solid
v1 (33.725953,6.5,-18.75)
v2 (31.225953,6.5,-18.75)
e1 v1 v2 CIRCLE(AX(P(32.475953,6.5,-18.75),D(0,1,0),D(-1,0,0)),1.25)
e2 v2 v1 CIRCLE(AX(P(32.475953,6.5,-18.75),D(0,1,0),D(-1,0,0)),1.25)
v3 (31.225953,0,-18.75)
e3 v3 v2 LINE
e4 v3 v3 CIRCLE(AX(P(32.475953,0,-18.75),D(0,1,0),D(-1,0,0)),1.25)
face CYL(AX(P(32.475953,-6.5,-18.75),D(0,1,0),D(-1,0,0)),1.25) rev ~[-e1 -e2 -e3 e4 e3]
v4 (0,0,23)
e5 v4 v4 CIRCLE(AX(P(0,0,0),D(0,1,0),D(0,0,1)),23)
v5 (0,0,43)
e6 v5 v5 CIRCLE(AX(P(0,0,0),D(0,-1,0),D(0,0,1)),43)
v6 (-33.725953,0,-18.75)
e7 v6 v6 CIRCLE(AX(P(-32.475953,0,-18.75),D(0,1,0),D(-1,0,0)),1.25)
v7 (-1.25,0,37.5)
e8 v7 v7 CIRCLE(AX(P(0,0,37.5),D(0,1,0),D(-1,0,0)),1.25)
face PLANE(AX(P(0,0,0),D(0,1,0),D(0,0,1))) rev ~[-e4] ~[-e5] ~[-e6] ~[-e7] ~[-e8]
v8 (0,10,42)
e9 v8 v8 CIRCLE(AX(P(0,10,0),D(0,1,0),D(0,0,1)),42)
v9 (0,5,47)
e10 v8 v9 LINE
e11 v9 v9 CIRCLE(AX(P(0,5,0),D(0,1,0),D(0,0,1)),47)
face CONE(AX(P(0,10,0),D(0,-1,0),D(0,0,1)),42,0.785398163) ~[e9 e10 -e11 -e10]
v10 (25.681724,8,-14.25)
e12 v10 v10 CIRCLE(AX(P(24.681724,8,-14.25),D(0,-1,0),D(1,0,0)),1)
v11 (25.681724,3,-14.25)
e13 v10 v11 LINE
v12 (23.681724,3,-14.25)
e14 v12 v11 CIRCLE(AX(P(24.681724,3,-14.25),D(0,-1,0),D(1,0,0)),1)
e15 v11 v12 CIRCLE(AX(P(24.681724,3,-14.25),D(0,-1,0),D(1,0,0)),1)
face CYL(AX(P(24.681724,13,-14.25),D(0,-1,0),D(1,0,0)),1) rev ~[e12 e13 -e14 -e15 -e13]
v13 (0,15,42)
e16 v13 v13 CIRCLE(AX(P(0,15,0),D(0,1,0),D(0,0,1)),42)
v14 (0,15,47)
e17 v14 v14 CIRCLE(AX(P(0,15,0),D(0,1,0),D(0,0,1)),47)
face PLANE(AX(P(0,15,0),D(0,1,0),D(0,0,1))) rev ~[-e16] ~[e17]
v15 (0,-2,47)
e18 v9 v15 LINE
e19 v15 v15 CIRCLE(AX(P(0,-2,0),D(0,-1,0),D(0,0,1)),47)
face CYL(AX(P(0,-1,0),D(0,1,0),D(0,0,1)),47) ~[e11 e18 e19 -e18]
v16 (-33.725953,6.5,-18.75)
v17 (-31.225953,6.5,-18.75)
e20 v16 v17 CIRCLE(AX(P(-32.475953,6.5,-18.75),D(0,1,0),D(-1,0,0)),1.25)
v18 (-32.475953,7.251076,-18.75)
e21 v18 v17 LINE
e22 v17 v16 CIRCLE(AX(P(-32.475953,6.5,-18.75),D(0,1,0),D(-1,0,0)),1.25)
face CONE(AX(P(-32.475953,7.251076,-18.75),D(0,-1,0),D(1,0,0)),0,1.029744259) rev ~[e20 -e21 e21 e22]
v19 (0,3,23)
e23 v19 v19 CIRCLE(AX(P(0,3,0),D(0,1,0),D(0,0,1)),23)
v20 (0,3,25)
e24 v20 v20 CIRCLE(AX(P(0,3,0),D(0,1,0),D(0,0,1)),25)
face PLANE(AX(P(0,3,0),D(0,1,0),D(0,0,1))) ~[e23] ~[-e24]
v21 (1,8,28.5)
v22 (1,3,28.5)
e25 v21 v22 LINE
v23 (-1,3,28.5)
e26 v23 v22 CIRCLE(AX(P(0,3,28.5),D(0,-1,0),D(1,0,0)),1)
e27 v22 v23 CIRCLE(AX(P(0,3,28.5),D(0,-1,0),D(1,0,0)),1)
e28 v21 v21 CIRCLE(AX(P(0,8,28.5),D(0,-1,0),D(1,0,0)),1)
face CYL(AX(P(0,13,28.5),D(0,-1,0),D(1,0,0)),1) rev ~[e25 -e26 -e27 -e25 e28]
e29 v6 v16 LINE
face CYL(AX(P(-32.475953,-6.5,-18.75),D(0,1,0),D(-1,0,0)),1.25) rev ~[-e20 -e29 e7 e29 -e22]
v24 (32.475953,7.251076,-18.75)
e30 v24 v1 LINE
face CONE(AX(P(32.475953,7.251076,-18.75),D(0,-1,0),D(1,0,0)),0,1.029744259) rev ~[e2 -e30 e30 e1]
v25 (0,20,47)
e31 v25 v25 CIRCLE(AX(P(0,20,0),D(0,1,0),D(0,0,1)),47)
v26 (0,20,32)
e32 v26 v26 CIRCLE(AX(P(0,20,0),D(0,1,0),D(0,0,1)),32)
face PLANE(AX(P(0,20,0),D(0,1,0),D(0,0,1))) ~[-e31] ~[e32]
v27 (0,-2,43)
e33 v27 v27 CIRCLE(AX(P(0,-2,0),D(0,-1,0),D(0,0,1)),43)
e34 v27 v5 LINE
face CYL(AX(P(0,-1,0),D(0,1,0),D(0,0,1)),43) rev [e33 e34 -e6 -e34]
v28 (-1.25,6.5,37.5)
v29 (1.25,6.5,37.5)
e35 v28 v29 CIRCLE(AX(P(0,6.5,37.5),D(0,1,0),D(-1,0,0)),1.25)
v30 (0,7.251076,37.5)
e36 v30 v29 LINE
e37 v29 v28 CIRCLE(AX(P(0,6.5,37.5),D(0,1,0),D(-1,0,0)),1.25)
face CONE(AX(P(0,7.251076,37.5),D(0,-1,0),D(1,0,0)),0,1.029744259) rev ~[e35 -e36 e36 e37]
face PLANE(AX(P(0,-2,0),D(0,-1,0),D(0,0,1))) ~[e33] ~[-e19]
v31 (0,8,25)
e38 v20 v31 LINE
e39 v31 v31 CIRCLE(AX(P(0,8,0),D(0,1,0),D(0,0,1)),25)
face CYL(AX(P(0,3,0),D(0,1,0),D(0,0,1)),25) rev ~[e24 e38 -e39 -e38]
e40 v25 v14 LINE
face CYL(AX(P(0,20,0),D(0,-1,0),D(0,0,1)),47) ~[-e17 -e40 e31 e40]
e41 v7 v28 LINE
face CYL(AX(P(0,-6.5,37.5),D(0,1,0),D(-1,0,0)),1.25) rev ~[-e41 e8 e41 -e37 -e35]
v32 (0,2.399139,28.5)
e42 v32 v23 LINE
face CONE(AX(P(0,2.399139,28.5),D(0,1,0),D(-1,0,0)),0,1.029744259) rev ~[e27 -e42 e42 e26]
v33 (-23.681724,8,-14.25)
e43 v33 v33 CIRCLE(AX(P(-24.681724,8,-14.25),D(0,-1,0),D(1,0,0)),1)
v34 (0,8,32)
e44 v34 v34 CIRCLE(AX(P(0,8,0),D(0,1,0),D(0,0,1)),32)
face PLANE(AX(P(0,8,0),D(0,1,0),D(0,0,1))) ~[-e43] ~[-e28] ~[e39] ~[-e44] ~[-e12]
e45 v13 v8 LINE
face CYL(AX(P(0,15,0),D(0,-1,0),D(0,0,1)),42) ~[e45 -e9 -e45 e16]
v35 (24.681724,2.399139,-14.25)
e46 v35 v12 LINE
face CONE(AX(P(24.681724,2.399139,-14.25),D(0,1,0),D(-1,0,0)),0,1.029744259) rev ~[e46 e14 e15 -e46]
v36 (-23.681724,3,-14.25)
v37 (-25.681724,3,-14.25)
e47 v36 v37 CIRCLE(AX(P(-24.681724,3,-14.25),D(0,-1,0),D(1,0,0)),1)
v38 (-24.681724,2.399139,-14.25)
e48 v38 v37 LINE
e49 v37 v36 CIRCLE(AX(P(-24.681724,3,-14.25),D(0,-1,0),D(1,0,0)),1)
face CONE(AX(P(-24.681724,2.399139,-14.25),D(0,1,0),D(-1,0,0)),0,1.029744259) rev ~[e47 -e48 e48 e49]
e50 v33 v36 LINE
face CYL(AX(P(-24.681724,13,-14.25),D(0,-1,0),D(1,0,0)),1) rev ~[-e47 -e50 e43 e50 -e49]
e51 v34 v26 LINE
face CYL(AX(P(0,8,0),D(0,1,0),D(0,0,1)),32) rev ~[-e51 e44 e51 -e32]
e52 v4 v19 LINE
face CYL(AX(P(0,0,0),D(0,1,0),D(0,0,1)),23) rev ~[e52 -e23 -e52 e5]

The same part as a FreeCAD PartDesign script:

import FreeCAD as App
import Part
import Sketcher
from FreeCAD import Vector
Q = App.Units.Quantity

doc = App.newDocument("Part")
params = doc.addObject("Spreadsheet::Sheet", "Params")
for row, (alias, value) in enumerate([
    ("sketch1_width", "5 mm"),
    ("sketch1_width2", "3 mm"),
    ("sketch1_width3", "12 mm"),
    ("sketch1_height", "24 mm"),
    ("sketch1_height2", "2 mm"),
    ("revolution_angle", "360 deg"),
    ("sketch2_diameter", "2 mm"),
    ("hole_diameter", "2 mm"),
    ("hole_depth", "5 mm"),
    ("sketch3_width", "2 mm"),
    ("sketch3_height", "4 mm"),
    ("revolution2_angle", "360 deg"),
    ("sketch4_diameter", "2.5 mm"),
    ("hole2_diameter", "2.5 mm"),
    ("hole2_depth", "6.5 mm"),
], start=1):
    params.set(f"A{row}", alias)
    params.set(f"B{row}", "=" + value)
    params.setAlias(f"B{row}", alias)

body = doc.addObject("PartDesign::Body", "Body")

sketch1 = doc.addObject("Sketcher::SketchObject", "Sketch")
body.addObject(sketch1)
sketch1.AttachmentSupport = (doc.YZ_Plane, [""])
sketch1.MapMode = "FlatFace"
sketch1.addGeometry(Part.LineSegment(Vector(5, 47, 0), Vector(0, 47, 0)), False)
sketch1.addGeometry(Part.LineSegment(Vector(0, 47, 0), Vector(0, 23, 0)), False)
sketch1.addGeometry(Part.LineSegment(Vector(0, 23, 0), Vector(3, 23, 0)), False)
sketch1.addGeometry(Part.LineSegment(Vector(3, 23, 0), Vector(3, 25, 0)), False)
sketch1.addGeometry(Part.LineSegment(Vector(3, 25, 0), Vector(8, 25, 0)), False)
sketch1.addGeometry(Part.LineSegment(Vector(8, 25, 0), Vector(8, 32, 0)), False)
sketch1.addGeometry(Part.LineSegment(Vector(8, 32, 0), Vector(20, 32, 0)), False)
sketch1.addGeometry(Part.LineSegment(Vector(20, 32, 0), Vector(20, 47, 0)), False)
sketch1.addGeometry(Part.LineSegment(Vector(20, 47, 0), Vector(15, 47, 0)), False)
sketch1.addGeometry(Part.LineSegment(Vector(15, 47, 0), Vector(15, 42, 0)), False)
sketch1.addGeometry(Part.LineSegment(Vector(15, 42, 0), Vector(10, 42, 0)), False)
sketch1.addGeometry(Part.LineSegment(Vector(10, 42, 0), Vector(5, 47, 0)), False)
sketch1.addConstraint(Sketcher.Constraint("Coincident", 0, 2, 1, 1))
sketch1.addConstraint(Sketcher.Constraint("Coincident", 1, 2, 2, 1))
sketch1.addConstraint(Sketcher.Constraint("Coincident", 2, 2, 3, 1))
sketch1.addConstraint(Sketcher.Constraint("Coincident", 3, 2, 4, 1))
sketch1.addConstraint(Sketcher.Constraint("Coincident", 4, 2, 5, 1))
sketch1.addConstraint(Sketcher.Constraint("Coincident", 5, 2, 6, 1))
sketch1.addConstraint(Sketcher.Constraint("Coincident", 6, 2, 7, 1))
sketch1.addConstraint(Sketcher.Constraint("Coincident", 7, 2, 8, 1))
sketch1.addConstraint(Sketcher.Constraint("Coincident", 8, 2, 9, 1))
sketch1.addConstraint(Sketcher.Constraint("Coincident", 9, 2, 10, 1))
sketch1.addConstraint(Sketcher.Constraint("Coincident", 10, 2, 11, 1))
sketch1.addConstraint(Sketcher.Constraint("Coincident", 11, 2, 0, 1))
sketch1.addConstraint(Sketcher.Constraint("Horizontal", 0))
sketch1.addConstraint(Sketcher.Constraint("Vertical", 1))
sketch1.addConstraint(Sketcher.Constraint("Horizontal", 2))
sketch1.addConstraint(Sketcher.Constraint("Vertical", 3))
sketch1.addConstraint(Sketcher.Constraint("Horizontal", 4))
sketch1.addConstraint(Sketcher.Constraint("Vertical", 5))
sketch1.addConstraint(Sketcher.Constraint("Horizontal", 6))
sketch1.addConstraint(Sketcher.Constraint("Vertical", 7))
sketch1.addConstraint(Sketcher.Constraint("Horizontal", 8))
sketch1.addConstraint(Sketcher.Constraint("Vertical", 9))
sketch1.addConstraint(Sketcher.Constraint("Horizontal", 10))
sketch1.addConstraint(Sketcher.Constraint("PointOnObject", 0, 2, -2))
sketch1.addConstraint(Sketcher.Constraint("Horizontal", 0, 2, 7, 2))
sketch1.addConstraint(Sketcher.Constraint("Equal", 0, 4))
sketch1.addConstraint(Sketcher.Constraint("Equal", 4, 8))
sketch1.addConstraint(Sketcher.Constraint("Equal", 8, 10))
sketch1.addConstraint(Sketcher.Constraint("Equal", 10, 9))
sketch1.addConstraint(Sketcher.Constraint("DistanceX", 0, 2, 0, 1, Q("5 mm")))
sketch1.addConstraint(Sketcher.Constraint("DistanceX", 2, 1, 2, 2, Q("3 mm")))
sketch1.addConstraint(Sketcher.Constraint("DistanceX", 6, 1, 6, 2, Q("12 mm")))
sketch1.addConstraint(Sketcher.Constraint("DistanceY", 1, 2, 1, 1, Q("24 mm")))
sketch1.addConstraint(Sketcher.Constraint("DistanceY", 3, 1, 3, 2, Q("2 mm")))
sketch1.addConstraint(Sketcher.Constraint("DistanceY", 5, 1, 5, 2, Q("7 mm")))
sketch1.addConstraint(Sketcher.Constraint("DistanceY", -1, 1, 0, 2, Q("47 mm")))
sketch1.setExpression("Constraints[29]", "Params.sketch1_width")
sketch1.setExpression("Constraints[30]", "Params.sketch1_width2")
sketch1.setExpression("Constraints[31]", "Params.sketch1_width3")
sketch1.setExpression("Constraints[32]", "Params.sketch1_height")
sketch1.setExpression("Constraints[33]", "Params.sketch1_height2")
revolution = doc.addObject("PartDesign::Revolution", "Revolution")
body.addObject(revolution)
revolution.Profile = sketch1
revolution.ReferenceAxis = (sketch1, ["H_Axis"])
revolution.setExpression("Angle", "Params.revolution_angle")

sketch2 = doc.addObject("Sketcher::SketchObject", "Sketch001")
body.addObject(sketch2)
sketch2.AttachmentSupport = (doc.XZ_Plane, [""])
sketch2.MapMode = "FlatFace"
sketch2.AttachmentOffset = App.Placement(Vector(0, 0, -8), App.Rotation())
sketch2.addGeometry(Part.Circle(Vector(0, 28.5, 0), Vector(0, 0, 1), 1), False)
sketch2.addGeometry(Part.Circle(Vector(-24.7, -14.2, 0), Vector(0, 0, 1), 1), False)
sketch2.addGeometry(Part.Circle(Vector(24.7, -14.2, 0), Vector(0, 0, 1), 1), False)
sketch2.addConstraint(Sketcher.Constraint("Equal", 0, 1))
sketch2.addConstraint(Sketcher.Constraint("Equal", 1, 2))
sketch2.addConstraint(Sketcher.Constraint("Symmetric", 1, 3, 2, 3, -2))
sketch2.addConstraint(Sketcher.Constraint("PointOnObject", 0, 3, -2))
sketch2.addConstraint(Sketcher.Constraint("Diameter", 0, Q("2 mm")))
sketch2.addConstraint(Sketcher.Constraint("DistanceY", -1, 1, 0, 3, Q("28.5 mm")))
sketch2.addConstraint(Sketcher.Constraint("DistanceY", 1, 3, -1, 1, Q("14.25 mm")))
sketch2.addConstraint(Sketcher.Constraint("DistanceX", 1, 3, 2, 3, Q("49.363448 mm")))
sketch2.setExpression("Constraints[4]", "Params.sketch2_diameter")
doc.recompute()
hole = doc.addObject("PartDesign::Hole", "Hole")
body.addObject(hole)
hole.Profile = sketch2
hole.ThreadType = "None"
hole.setExpression("Diameter", "Params.hole_diameter")
hole.DepthType = "Dimension"
hole.setExpression("Depth", "Params.hole_depth")
hole.DrillPoint = "Angled"
hole.DrillPointAngle = 118
hole.Reversed = True

sketch3 = doc.addObject("Sketcher::SketchObject", "Sketch002")
body.addObject(sketch3)
sketch3.AttachmentSupport = (doc.YZ_Plane, [""])
sketch3.MapMode = "FlatFace"
sketch3.addGeometry(Part.LineSegment(Vector(-2, 47, 0), Vector(-2, 43, 0)), False)
sketch3.addGeometry(Part.LineSegment(Vector(-2, 43, 0), Vector(0, 43, 0)), False)
sketch3.addGeometry(Part.LineSegment(Vector(0, 43, 0), Vector(0, 47, 0)), False)
sketch3.addGeometry(Part.LineSegment(Vector(0, 47, 0), Vector(-2, 47, 0)), False)
sketch3.addConstraint(Sketcher.Constraint("Coincident", 0, 2, 1, 1))
sketch3.addConstraint(Sketcher.Constraint("Coincident", 1, 2, 2, 1))
sketch3.addConstraint(Sketcher.Constraint("Coincident", 2, 2, 3, 1))
sketch3.addConstraint(Sketcher.Constraint("Coincident", 3, 2, 0, 1))
sketch3.addConstraint(Sketcher.Constraint("Vertical", 0))
sketch3.addConstraint(Sketcher.Constraint("Horizontal", 1))
sketch3.addConstraint(Sketcher.Constraint("Vertical", 2))
sketch3.addConstraint(Sketcher.Constraint("Horizontal", 3))
sketch3.addConstraint(Sketcher.Constraint("PointOnObject", 1, 2, -2))
sketch3.addConstraint(Sketcher.Constraint("DistanceX", 1, 1, 1, 2, Q("2 mm")))
sketch3.addConstraint(Sketcher.Constraint("DistanceY", 0, 2, 0, 1, Q("4 mm")))
sketch3.addConstraint(Sketcher.Constraint("DistanceY", -1, 1, 0, 2, Q("43 mm")))
sketch3.setExpression("Constraints[9]", "Params.sketch3_width")
sketch3.setExpression("Constraints[10]", "Params.sketch3_height")
revolution2 = doc.addObject("PartDesign::Revolution", "Revolution001")
body.addObject(revolution2)
revolution2.Profile = sketch3
revolution2.ReferenceAxis = (sketch3, ["H_Axis"])
revolution2.setExpression("Angle", "Params.revolution2_angle")

sketch4 = doc.addObject("Sketcher::SketchObject", "Sketch003")
body.addObject(sketch4)
sketch4.AttachmentSupport = (doc.XZ_Plane, [""])
sketch4.MapMode = "FlatFace"
sketch4.addGeometry(Part.Circle(Vector(0, 37.5, 0), Vector(0, 0, 1), 1.2), False)
sketch4.addGeometry(Part.Circle(Vector(32.5, -18.8, 0), Vector(0, 0, 1), 1.2), False)
sketch4.addGeometry(Part.Circle(Vector(-32.5, -18.8, 0), Vector(0, 0, 1), 1.2), False)
sketch4.addConstraint(Sketcher.Constraint("Equal", 0, 1))
sketch4.addConstraint(Sketcher.Constraint("Equal", 1, 2))
sketch4.addConstraint(Sketcher.Constraint("Symmetric", 1, 3, 2, 3, -2))
sketch4.addConstraint(Sketcher.Constraint("PointOnObject", 0, 3, -2))
sketch4.addConstraint(Sketcher.Constraint("Diameter", 0, Q("2.5 mm")))
sketch4.addConstraint(Sketcher.Constraint("DistanceY", -1, 1, 0, 3, Q("37.5 mm")))
sketch4.addConstraint(Sketcher.Constraint("DistanceY", 1, 3, -1, 1, Q("18.75 mm")))
sketch4.addConstraint(Sketcher.Constraint("DistanceX", -1, 1, 1, 3, Q("32.475953 mm")))
sketch4.setExpression("Constraints[4]", "Params.sketch4_diameter")
doc.recompute()
hole2 = doc.addObject("PartDesign::Hole", "Hole001")
body.addObject(hole2)
hole2.Profile = sketch4
hole2.ThreadType = "None"
hole2.setExpression("Diameter", "Params.hole2_diameter")
hole2.DepthType = "Dimension"
hole2.setExpression("Depth", "Params.hole2_depth")
hole2.DrillPoint = "Angled"
hole2.DrillPointAngle = 118

doc.recompute()
